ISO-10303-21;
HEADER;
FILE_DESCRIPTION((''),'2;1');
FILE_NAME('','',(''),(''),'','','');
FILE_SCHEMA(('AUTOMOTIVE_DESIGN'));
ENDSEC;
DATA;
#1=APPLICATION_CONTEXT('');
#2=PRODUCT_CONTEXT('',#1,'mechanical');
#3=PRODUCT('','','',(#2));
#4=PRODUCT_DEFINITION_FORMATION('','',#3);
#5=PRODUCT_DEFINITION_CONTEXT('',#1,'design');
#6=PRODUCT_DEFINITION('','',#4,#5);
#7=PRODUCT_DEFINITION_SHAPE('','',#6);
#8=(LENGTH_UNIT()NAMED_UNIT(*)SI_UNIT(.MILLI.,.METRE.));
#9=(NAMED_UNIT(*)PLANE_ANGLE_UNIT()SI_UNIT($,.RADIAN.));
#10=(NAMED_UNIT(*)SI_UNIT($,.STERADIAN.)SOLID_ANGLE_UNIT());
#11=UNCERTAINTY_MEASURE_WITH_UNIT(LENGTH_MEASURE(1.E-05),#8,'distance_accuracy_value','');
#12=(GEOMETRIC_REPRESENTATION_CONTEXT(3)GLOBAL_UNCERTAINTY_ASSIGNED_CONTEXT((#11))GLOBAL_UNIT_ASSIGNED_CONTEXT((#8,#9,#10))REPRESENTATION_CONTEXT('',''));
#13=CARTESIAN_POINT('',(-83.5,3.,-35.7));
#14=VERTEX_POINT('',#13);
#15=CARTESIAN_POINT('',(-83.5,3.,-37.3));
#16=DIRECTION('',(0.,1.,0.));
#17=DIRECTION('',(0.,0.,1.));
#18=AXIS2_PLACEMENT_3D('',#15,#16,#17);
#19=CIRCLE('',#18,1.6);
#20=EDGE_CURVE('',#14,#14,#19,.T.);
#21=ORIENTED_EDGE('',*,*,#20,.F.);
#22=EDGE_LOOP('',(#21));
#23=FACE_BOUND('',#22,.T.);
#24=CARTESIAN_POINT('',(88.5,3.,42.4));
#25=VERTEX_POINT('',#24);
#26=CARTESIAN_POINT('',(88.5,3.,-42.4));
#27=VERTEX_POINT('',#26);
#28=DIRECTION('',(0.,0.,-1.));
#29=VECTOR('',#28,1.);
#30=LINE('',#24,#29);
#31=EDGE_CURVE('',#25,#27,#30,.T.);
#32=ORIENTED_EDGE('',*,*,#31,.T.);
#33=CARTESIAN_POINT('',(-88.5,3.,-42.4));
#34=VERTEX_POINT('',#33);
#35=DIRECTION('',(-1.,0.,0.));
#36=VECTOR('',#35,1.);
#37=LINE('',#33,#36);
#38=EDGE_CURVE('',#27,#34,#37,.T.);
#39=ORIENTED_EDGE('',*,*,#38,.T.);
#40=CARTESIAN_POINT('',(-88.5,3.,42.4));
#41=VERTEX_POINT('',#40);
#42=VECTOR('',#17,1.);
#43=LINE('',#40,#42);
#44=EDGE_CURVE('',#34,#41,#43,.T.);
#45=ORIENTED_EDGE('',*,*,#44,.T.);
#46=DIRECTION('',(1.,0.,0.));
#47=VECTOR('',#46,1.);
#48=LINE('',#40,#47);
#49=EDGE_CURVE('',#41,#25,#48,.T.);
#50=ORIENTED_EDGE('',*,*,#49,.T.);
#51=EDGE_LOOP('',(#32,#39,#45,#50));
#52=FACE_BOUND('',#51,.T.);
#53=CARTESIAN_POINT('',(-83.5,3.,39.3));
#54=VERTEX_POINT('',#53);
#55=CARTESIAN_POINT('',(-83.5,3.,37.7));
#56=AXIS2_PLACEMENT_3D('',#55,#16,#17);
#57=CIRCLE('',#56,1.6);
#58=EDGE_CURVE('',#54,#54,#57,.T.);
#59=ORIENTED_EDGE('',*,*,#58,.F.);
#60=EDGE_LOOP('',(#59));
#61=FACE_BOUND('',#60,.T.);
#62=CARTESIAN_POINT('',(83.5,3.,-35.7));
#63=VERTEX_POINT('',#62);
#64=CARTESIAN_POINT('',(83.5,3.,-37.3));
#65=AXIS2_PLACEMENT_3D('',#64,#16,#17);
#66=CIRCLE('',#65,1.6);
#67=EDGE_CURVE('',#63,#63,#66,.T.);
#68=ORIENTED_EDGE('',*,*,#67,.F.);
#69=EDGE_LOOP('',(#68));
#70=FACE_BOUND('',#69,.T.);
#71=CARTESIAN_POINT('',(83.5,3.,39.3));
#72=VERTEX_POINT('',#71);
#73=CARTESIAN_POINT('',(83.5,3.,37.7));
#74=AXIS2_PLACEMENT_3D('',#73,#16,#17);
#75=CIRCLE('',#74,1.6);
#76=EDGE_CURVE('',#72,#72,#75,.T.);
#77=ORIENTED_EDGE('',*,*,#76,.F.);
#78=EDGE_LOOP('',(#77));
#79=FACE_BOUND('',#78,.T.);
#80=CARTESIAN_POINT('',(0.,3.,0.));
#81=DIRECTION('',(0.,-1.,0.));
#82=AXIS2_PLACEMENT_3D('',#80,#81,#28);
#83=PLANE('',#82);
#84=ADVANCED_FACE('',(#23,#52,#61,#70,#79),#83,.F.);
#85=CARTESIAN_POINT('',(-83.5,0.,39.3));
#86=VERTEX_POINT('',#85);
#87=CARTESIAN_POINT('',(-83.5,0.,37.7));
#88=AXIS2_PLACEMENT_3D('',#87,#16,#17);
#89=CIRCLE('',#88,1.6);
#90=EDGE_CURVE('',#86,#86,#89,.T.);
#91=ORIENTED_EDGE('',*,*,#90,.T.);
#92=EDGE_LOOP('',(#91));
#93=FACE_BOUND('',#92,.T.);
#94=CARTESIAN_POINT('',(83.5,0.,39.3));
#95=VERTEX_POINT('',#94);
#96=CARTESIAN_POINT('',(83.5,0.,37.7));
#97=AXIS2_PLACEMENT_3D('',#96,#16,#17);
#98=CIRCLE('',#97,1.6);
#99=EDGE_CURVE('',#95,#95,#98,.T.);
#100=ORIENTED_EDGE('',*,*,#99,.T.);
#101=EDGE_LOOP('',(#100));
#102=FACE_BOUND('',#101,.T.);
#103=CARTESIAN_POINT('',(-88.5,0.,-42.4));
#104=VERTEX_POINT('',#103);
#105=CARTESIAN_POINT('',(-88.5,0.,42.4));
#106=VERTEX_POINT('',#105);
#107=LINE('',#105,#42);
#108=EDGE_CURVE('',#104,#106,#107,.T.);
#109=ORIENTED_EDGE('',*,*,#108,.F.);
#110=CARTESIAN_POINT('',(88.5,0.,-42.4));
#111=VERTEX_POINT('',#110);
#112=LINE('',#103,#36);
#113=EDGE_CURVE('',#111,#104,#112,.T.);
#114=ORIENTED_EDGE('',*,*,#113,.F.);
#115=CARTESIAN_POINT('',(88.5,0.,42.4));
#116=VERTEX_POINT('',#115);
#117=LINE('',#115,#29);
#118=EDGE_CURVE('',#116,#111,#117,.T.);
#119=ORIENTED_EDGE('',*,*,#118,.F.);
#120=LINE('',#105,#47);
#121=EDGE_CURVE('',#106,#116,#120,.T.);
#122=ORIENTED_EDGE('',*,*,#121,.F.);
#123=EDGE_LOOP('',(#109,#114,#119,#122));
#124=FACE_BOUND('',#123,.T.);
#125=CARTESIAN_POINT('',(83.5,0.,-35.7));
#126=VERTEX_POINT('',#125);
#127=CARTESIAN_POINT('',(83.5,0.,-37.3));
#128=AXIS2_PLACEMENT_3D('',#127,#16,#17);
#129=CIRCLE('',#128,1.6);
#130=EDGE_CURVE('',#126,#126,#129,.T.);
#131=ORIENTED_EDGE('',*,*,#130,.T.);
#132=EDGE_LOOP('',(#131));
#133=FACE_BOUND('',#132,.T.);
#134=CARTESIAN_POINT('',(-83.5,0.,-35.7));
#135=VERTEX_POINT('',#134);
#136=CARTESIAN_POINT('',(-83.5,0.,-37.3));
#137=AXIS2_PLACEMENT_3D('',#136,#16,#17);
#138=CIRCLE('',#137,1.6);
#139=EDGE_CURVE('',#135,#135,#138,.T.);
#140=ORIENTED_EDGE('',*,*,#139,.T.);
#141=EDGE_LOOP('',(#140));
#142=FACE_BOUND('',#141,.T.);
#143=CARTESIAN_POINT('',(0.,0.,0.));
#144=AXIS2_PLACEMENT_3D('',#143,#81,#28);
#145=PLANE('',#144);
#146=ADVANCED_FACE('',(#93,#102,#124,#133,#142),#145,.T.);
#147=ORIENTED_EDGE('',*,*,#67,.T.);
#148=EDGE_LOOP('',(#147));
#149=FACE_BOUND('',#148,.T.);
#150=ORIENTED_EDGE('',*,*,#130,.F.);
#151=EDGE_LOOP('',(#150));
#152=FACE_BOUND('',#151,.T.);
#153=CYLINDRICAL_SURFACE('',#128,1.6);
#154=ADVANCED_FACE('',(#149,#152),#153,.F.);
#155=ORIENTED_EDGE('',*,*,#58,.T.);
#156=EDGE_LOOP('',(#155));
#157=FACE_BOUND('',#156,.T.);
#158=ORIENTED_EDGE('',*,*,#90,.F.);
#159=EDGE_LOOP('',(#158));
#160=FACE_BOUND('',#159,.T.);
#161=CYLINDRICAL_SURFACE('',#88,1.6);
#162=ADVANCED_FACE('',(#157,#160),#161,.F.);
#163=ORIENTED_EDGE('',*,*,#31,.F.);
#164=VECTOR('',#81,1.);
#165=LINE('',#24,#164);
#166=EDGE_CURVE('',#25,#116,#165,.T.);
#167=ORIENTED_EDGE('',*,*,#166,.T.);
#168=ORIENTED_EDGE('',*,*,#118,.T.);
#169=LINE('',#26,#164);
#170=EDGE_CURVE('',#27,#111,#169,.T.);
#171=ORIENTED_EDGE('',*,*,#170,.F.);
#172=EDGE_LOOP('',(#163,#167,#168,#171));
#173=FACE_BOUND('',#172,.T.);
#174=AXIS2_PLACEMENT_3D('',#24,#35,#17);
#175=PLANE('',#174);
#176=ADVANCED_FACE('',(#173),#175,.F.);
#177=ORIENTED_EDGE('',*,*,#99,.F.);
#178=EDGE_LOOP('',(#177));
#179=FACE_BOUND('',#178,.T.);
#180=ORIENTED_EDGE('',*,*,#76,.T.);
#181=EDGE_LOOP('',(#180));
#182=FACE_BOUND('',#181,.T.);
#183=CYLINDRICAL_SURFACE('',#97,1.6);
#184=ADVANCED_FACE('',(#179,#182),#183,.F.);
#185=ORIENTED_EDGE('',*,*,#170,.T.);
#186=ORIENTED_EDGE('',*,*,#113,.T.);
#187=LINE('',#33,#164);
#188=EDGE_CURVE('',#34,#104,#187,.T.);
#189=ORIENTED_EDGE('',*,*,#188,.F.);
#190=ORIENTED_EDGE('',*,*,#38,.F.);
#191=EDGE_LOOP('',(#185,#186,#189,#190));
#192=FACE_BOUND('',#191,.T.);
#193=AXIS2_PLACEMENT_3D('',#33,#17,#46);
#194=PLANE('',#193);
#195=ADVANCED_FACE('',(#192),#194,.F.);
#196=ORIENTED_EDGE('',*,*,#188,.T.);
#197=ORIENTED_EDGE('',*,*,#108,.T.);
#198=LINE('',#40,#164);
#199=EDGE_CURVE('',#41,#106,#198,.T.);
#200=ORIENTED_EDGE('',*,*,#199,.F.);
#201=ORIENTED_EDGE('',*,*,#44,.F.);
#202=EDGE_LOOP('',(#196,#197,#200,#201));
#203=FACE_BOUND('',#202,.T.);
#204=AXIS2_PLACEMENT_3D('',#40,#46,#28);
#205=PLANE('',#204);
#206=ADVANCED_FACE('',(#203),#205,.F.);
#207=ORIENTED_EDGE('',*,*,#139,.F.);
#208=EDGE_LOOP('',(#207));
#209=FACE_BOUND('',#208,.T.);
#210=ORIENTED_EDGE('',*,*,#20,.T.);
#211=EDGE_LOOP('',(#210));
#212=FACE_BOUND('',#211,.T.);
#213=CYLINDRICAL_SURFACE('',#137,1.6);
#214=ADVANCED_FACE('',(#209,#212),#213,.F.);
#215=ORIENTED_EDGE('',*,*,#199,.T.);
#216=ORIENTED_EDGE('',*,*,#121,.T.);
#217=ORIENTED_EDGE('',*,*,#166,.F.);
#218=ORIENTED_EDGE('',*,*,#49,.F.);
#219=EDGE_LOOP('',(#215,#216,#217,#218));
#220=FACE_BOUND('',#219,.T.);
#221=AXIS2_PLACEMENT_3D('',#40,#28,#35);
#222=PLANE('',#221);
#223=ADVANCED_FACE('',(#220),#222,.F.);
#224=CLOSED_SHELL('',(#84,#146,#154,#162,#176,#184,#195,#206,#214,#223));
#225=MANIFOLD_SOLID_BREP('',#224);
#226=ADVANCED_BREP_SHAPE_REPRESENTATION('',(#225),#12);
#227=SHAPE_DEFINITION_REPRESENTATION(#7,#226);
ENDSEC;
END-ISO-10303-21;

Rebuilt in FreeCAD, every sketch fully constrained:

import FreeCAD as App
import Part
import Sketcher
from FreeCAD import Vector

doc = App.newDocument("Part")
body = doc.addObject("PartDesign::Body", "Body")

sketch1 = doc.addObject("Sketcher::SketchObject", "Sketch")
body.addObject(sketch1)
sketch1.AttachmentSupport = (doc.XZ_Plane, [""])
sketch1.MapMode = "FlatFace"
sketch1.addGeometry([
    Part.LineSegment(Vector(-88, -42, 0), Vector(-88, 42, 0)),
    Part.LineSegment(Vector(-88, 42, 0), Vector(88, 42, 0)),
    Part.LineSegment(Vector(88, 42, 0), Vector(88, -42, 0)),
    Part.LineSegment(Vector(88, -42, 0), Vector(-88, -42, 0)),
], False)
sketch1.addConstraint([
    Sketcher.Constraint("Coincident", 0, 2, 1, 1),
    Sketcher.Constraint("Coincident", 1, 2, 2, 1),
    Sketcher.Constraint("Coincident", 2, 2, 3, 1),
    Sketcher.Constraint("Coincident", 3, 2, 0, 1),
    Sketcher.Constraint("Vertical", 0),
    Sketcher.Constraint("Horizontal", 1),
    Sketcher.Constraint("Vertical", 2),
    Sketcher.Constraint("Horizontal", 3),
    Sketcher.Constraint("Symmetric", 0, 2, 2, 2, -1, 1),
    Sketcher.Constraint("DistanceX", 1, 1, 1, 2, 177.0),
    Sketcher.Constraint("DistanceY", 0, 1, 0, 2, 84.8),
])
pad1 = doc.addObject("PartDesign::Pad", "Pad")
body.addObject(pad1)
pad1.Profile = sketch1
pad1.Length = 3
pad1.Reversed = True

sketch2 = doc.addObject("Sketcher::SketchObject", "Sketch001")
body.addObject(sketch2)
sketch2.AttachmentSupport = (doc.XZ_Plane, [""])
sketch2.MapMode = "FlatFace"
sketch2.AttachmentOffset = App.Placement(Vector(0, 0, -3), App.Rotation())
sketch2.addGeometry([
    Part.Circle(Vector(83.5, 37.7, 0), Vector(0, 0, 1), 1.6),
    Part.Circle(Vector(83.5, -37.3, 0), Vector(0, 0, 1), 1.6),
    Part.Circle(Vector(-83.5, -37.3, 0), Vector(0, 0, 1), 1.6),
    Part.Circle(Vector(-83.5, 37.7, 0), Vector(0, 0, 1), 1.6),
], False)
sketch2.addConstraint([
    Sketcher.Constraint("Equal", 0, 1),
    Sketcher.Constraint("Equal", 1, 2),
    Sketcher.Constraint("Equal", 2, 3),
    Sketcher.Constraint("Symmetric", 1, 3, 2, 3, -2),
    Sketcher.Constraint("Symmetric", 0, 3, 3, 3, -2),
    Sketcher.Constraint("Vertical", 0, 3, 1, 3),
    Sketcher.Constraint("Diameter", 0, 3.2),
    Sketcher.Constraint("DistanceY", 1, 3, 0, 3, 75.0),
    Sketcher.Constraint("DistanceX", 2, 3, 1, 3, 167.0),
    Sketcher.Constraint("DistanceY", -1, 1, 0, 3, 37.7),
])
pocket1 = doc.addObject("PartDesign::Pocket", "Pocket")
body.addObject(pocket1)
pocket1.Profile = sketch2
pocket1.Type = "ThroughAll"
pocket1.Reversed = True

doc.recompute()
